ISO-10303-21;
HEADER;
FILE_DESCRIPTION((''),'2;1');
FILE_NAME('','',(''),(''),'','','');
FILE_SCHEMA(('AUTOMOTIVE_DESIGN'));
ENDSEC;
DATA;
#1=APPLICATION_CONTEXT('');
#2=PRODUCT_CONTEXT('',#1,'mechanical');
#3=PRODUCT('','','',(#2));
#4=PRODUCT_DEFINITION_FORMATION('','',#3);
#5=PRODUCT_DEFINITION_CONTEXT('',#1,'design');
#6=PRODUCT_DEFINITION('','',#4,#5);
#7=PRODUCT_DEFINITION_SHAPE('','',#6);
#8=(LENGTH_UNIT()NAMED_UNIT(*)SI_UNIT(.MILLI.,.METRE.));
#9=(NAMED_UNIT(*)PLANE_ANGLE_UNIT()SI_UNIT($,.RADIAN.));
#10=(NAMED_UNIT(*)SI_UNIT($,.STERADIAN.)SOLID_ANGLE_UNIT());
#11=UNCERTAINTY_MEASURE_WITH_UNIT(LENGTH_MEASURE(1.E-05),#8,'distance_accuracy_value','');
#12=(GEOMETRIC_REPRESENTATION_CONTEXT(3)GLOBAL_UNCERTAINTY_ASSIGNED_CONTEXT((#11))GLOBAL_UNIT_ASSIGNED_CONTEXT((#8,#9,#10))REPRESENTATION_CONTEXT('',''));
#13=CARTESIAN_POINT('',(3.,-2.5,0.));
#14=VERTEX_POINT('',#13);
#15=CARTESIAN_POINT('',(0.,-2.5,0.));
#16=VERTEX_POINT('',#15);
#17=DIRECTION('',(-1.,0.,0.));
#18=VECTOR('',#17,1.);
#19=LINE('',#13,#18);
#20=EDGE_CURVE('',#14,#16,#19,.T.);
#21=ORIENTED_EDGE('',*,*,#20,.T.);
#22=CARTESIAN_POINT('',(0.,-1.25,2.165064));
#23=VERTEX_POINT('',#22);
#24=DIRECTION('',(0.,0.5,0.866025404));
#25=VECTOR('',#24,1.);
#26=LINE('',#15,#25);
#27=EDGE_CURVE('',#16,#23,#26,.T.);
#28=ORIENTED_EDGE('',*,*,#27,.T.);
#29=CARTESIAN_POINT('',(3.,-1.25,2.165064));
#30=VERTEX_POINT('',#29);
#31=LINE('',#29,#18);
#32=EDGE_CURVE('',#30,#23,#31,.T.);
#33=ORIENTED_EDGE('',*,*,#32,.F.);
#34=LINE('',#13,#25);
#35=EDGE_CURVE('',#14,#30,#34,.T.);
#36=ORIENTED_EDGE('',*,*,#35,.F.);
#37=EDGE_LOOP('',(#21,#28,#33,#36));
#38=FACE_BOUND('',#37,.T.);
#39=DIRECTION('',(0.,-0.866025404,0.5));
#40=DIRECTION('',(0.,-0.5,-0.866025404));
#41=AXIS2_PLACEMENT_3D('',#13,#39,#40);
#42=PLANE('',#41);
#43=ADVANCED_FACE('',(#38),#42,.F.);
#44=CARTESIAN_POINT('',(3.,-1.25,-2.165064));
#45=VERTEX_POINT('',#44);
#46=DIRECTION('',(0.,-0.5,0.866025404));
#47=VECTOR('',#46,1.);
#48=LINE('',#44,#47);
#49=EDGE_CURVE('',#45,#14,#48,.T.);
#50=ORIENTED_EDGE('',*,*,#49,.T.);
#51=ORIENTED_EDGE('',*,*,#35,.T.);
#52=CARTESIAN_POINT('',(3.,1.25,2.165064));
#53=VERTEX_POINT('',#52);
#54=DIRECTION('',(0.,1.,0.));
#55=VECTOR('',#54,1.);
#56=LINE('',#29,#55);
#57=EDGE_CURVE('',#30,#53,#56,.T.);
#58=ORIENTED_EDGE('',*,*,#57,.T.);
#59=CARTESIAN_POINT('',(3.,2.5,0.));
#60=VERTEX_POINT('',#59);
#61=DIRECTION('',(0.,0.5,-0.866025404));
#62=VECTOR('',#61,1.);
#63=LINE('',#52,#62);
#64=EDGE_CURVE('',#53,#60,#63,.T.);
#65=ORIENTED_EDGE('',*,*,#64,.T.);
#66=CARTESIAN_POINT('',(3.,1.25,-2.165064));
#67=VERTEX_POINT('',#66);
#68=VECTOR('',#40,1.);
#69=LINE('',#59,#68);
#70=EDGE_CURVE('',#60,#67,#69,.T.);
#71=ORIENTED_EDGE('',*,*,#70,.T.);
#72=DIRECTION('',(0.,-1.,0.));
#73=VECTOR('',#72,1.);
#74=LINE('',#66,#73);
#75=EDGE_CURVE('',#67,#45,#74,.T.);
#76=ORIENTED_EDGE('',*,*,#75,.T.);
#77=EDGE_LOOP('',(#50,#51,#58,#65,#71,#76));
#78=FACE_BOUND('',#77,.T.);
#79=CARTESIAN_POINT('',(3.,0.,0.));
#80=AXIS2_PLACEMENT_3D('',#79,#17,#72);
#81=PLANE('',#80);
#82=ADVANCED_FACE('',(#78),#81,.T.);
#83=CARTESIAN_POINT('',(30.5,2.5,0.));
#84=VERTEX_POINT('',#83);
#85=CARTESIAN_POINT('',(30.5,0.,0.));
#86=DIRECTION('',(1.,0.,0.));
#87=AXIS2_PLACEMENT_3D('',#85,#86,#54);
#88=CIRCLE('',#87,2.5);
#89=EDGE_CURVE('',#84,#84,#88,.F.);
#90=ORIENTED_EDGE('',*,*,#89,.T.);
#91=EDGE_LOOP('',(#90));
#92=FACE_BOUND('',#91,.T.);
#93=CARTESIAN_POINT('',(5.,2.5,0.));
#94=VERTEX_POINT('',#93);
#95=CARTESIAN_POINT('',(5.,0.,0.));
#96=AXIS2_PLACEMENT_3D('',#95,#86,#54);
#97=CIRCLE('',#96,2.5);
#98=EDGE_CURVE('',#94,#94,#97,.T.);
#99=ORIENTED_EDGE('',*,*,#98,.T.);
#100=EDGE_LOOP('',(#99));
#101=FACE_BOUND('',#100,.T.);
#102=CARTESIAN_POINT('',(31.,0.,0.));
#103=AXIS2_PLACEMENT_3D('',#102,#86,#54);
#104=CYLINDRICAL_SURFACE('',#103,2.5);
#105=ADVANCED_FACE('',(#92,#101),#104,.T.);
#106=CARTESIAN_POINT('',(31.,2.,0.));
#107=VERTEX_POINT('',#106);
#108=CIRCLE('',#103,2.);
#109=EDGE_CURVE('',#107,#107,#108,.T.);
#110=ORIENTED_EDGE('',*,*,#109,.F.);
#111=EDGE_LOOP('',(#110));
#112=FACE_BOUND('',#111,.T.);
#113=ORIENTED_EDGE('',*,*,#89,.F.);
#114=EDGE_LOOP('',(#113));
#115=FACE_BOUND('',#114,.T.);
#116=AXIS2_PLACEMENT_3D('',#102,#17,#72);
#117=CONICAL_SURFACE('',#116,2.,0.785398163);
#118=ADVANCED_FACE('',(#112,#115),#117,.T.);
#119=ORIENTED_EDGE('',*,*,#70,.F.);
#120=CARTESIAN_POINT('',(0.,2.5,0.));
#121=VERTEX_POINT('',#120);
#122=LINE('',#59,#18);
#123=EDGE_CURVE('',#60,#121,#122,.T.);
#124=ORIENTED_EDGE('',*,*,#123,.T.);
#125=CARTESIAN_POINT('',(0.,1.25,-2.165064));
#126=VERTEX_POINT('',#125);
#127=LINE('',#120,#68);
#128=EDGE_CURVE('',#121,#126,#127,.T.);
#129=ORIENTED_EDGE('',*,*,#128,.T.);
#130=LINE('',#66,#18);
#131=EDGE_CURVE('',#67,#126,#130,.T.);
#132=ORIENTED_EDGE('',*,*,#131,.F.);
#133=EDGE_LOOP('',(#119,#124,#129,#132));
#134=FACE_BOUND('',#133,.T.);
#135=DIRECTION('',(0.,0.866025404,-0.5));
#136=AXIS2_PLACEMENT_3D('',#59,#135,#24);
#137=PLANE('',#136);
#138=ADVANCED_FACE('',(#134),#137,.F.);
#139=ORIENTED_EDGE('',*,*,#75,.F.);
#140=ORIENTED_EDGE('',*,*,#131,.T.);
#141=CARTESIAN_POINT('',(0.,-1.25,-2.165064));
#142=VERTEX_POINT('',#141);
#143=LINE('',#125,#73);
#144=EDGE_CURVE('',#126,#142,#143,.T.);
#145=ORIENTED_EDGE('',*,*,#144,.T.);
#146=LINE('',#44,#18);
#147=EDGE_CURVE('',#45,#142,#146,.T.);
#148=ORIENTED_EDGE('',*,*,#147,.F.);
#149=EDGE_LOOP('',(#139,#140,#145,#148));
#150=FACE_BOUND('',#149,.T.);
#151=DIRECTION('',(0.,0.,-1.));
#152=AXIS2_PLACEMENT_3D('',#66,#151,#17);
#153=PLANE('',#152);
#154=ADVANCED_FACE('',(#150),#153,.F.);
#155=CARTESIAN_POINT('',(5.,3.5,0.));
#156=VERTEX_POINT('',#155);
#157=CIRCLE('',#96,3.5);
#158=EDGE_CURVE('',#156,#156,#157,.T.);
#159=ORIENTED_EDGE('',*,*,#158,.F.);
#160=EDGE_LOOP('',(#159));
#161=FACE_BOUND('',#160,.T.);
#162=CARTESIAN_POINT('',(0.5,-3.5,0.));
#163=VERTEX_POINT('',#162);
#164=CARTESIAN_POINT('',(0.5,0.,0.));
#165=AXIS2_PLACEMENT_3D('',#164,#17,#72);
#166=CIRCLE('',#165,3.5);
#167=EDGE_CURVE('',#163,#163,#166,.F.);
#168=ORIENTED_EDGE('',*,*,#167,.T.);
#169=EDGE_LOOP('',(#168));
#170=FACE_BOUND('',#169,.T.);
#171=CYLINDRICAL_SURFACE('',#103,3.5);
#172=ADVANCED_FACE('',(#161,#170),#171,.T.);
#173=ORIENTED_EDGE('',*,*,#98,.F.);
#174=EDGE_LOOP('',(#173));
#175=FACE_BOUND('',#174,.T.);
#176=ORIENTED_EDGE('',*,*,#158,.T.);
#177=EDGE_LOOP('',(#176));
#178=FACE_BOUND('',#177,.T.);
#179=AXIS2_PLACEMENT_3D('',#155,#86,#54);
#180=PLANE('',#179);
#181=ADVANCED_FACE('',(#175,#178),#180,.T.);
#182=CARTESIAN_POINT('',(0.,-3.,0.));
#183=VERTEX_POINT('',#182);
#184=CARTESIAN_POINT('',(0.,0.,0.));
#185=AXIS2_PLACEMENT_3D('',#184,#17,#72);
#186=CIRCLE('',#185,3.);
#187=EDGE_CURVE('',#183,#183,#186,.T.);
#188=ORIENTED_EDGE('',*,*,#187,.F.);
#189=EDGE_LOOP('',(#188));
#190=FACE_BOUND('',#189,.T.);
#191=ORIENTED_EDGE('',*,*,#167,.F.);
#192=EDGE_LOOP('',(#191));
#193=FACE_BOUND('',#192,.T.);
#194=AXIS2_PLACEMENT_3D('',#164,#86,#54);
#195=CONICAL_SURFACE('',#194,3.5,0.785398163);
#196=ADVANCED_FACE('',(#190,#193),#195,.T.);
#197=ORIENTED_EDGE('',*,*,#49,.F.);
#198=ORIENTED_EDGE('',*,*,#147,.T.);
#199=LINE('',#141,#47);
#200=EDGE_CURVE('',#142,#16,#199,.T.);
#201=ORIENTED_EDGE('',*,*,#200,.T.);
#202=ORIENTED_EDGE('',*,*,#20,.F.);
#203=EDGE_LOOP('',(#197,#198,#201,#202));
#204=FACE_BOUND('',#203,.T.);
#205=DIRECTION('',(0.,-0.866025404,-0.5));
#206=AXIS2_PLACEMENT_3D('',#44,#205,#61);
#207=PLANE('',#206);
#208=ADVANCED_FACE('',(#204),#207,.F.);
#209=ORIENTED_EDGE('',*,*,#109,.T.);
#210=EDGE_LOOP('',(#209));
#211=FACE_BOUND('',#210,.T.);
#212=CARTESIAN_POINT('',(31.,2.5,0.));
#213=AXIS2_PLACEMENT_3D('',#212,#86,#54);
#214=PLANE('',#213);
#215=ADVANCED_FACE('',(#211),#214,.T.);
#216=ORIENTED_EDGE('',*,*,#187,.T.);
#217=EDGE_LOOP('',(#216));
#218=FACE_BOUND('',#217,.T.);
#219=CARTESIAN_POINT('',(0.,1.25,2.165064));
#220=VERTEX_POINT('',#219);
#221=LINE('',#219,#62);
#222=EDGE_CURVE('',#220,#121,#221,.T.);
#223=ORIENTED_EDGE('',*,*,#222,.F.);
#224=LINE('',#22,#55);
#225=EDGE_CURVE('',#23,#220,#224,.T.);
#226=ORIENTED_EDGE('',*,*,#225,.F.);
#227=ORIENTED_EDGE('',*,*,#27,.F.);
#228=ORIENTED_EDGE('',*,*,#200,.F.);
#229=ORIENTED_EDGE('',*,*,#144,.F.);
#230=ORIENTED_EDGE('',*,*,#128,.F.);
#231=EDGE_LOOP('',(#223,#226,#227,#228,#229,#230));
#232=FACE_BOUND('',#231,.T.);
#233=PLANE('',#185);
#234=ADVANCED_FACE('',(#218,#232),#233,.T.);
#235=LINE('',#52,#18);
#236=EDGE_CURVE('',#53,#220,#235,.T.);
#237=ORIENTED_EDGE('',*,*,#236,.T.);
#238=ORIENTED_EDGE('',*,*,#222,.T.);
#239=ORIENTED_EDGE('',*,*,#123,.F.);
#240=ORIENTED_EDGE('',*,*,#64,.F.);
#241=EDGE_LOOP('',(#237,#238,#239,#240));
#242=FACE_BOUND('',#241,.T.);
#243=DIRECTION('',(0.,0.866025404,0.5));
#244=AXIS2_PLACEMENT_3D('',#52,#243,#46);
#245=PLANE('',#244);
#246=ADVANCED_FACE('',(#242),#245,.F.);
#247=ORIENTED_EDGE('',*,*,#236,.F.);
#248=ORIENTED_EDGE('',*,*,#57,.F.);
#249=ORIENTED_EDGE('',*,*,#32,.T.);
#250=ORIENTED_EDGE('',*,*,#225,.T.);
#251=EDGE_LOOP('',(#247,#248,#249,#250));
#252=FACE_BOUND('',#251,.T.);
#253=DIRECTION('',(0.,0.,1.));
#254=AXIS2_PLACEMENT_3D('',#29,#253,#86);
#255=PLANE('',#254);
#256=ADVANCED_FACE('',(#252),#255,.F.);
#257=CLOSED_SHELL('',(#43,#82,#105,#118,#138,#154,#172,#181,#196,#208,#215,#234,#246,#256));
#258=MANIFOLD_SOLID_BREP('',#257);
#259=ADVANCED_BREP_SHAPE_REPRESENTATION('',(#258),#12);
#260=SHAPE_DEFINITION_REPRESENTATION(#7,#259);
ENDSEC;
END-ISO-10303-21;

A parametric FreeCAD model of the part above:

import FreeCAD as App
import Part
import Sketcher
Q = App.Units.Quantity


def edges_at(feature, points):
    """Names of the edges that pass closest to the given points."""
    edges = feature.Shape.Edges
    near = lambda p: min(range(len(edges)), key=lambda i: edges[i].distToShape(Part.Vertex(*p))[0])
    return sorted({f"Edge{near(p) + 1}" for p in points})

doc = App.newDocument("Part")
body = doc.addObject("PartDesign::Body", "Body")

# Sketch on XY plane
sketch1 = doc.addObject("Sketcher::SketchObject", "Sketch")
body.addObject(sketch1)
sketch1.AttachmentSupport = (doc.XY_Plane, [""])
sketch1.MapMode = "FlatFace"
sketch1.addGeometry(Part.LineSegment(App.Vector(0, 3.5, 0), App.Vector(0, 0, 0)), False)
sketch1.addGeometry(Part.LineSegment(App.Vector(0, 0, 0), App.Vector(31, 0, 0)), False)
sketch1.addGeometry(Part.LineSegment(App.Vector(31, 0, 0), App.Vector(31, 2.5, 0)), False)
sketch1.addGeometry(Part.LineSegment(App.Vector(31, 2.5, 0), App.Vector(5, 2.5, 0)), False)
sketch1.addGeometry(Part.LineSegment(App.Vector(5, 2.5, 0), App.Vector(5, 3.5, 0)), False)
sketch1.addGeometry(Part.LineSegment(App.Vector(5, 3.5, 0), App.Vector(0, 3.5, 0)), False)
sketch1.addConstraint(Sketcher.Constraint("Coincident", 0, 2, 1, 1))
sketch1.addConstraint(Sketcher.Constraint("Coincident", 1, 2, 2, 1))
sketch1.addConstraint(Sketcher.Constraint("Coincident", 2, 2, 3, 1))
sketch1.addConstraint(Sketcher.Constraint("Coincident", 3, 2, 4, 1))
sketch1.addConstraint(Sketcher.Constraint("Coincident", 4, 2, 5, 1))
sketch1.addConstraint(Sketcher.Constraint("Coincident", 5, 2, 0, 1))
sketch1.addConstraint(Sketcher.Constraint("Vertical", 0))
sketch1.addConstraint(Sketcher.Constraint("Horizontal", 1))
sketch1.addConstraint(Sketcher.Constraint("Vertical", 2))
sketch1.addConstraint(Sketcher.Constraint("Horizontal", 3))
sketch1.addConstraint(Sketcher.Constraint("Vertical", 4))
sketch1.addConstraint(Sketcher.Constraint("Horizontal", 5))
sketch1.addConstraint(Sketcher.Constraint("Coincident", 0, 2, -1, 1))
sketch1.addConstraint(Sketcher.Constraint("DistanceX", 1, 1, 1, 2, 31.0))
sketch1.addConstraint(Sketcher.Constraint("DistanceX", 3, 2, 3, 1, 26.0))
sketch1.addConstraint(Sketcher.Constraint("DistanceY", 4, 1, 4, 2, 1.0))
sketch1.addConstraint(Sketcher.Constraint("DistanceY", 0, 2, 0, 1, 3.5))
revolution = doc.addObject("PartDesign::Revolution", "Revolution")
body.addObject(revolution)
revolution.Profile = sketch1
revolution.ReferenceAxis = (sketch1, ["H_Axis"])
revolution.Angle = 360

# Sketch on YZ plane
sketch2 = doc.addObject("Sketcher::SketchObject", "Sketch001")
body.addObject(sketch2)
sketch2.AttachmentSupport = (doc.YZ_Plane, [""])
sketch2.MapMode = "FlatFace"
sketch2.addGeometry(Part.LineSegment(App.Vector(2.5, 0, 0), App.Vector(1.25, -2.165064, 0)), False)
sketch2.addGeometry(Part.LineSegment(App.Vector(1.25, -2.165064, 0), App.Vector(-1.25, -2.165064, 0)), False)
sketch2.addGeometry(Part.LineSegment(App.Vector(-1.25, -2.165064, 0), App.Vector(-2.5, 0, 0)), False)
sketch2.addGeometry(Part.LineSegment(App.Vector(-2.5, 0, 0), App.Vector(-1.25, 2.165064, 0)), False)
sketch2.addGeometry(Part.LineSegment(App.Vector(-1.25, 2.165064, 0), App.Vector(1.25, 2.165064, 0)), False)
sketch2.addGeometry(Part.LineSegment(App.Vector(1.25, 2.165064, 0), App.Vector(2.5, 0, 0)), False)
sketch2.addConstraint(Sketcher.Constraint("Coincident", 0, 2, 1, 1))
sketch2.addConstraint(Sketcher.Constraint("Coincident", 1, 2, 2, 1))
sketch2.addConstraint(Sketcher.Constraint("Coincident", 2, 2, 3, 1))
sketch2.addConstraint(Sketcher.Constraint("Coincident", 3, 2, 4, 1))
sketch2.addConstraint(Sketcher.Constraint("Coincident", 4, 2, 5, 1))
sketch2.addConstraint(Sketcher.Constraint("Coincident", 5, 2, 0, 1))
sketch2.addConstraint(Sketcher.Constraint("Horizontal", 1))
sketch2.addConstraint(Sketcher.Constraint("Horizontal", 4))
sketch2.addConstraint(Sketcher.Constraint("Symmetric", 0, 2, 3, 2, -1, 1))
sketch2.addConstraint(Sketcher.Constraint("Symmetric", 2, 2, 5, 2, -1, 1))
sketch2.addConstraint(Sketcher.Constraint("PointOnObject", 2, 2, -1))
sketch2.addConstraint(Sketcher.Constraint("Parallel", 2, 5))
sketch2.addConstraint(Sketcher.Constraint("Vertical", 1, 2, 3, 2))
sketch2.addConstraint(Sketcher.Constraint("Angle", 0, Q("-120 deg")))
sketch2.addConstraint(Sketcher.Constraint("DistanceX", 1, 2, 1, 1, 2.5))
sketch2.addConstraint(Sketcher.Constraint("DistanceX", 2, 2, 5, 2, 5.0))
pocket1 = doc.addObject("PartDesign::Pocket", "Pocket")
body.addObject(pocket1)
pocket1.Profile = sketch2
pocket1.Length = 3
pocket1.Reversed = True
doc.recompute()

chamfer = doc.addObject("PartDesign::Chamfer", "Chamfer")
body.addObject(chamfer)
chamfer.Base = (pocket1, edges_at(pocket1, [(31, -2.5, 0), (0, -3.5, 0)]))
chamfer.Size = 0.5

doc.recompute()
